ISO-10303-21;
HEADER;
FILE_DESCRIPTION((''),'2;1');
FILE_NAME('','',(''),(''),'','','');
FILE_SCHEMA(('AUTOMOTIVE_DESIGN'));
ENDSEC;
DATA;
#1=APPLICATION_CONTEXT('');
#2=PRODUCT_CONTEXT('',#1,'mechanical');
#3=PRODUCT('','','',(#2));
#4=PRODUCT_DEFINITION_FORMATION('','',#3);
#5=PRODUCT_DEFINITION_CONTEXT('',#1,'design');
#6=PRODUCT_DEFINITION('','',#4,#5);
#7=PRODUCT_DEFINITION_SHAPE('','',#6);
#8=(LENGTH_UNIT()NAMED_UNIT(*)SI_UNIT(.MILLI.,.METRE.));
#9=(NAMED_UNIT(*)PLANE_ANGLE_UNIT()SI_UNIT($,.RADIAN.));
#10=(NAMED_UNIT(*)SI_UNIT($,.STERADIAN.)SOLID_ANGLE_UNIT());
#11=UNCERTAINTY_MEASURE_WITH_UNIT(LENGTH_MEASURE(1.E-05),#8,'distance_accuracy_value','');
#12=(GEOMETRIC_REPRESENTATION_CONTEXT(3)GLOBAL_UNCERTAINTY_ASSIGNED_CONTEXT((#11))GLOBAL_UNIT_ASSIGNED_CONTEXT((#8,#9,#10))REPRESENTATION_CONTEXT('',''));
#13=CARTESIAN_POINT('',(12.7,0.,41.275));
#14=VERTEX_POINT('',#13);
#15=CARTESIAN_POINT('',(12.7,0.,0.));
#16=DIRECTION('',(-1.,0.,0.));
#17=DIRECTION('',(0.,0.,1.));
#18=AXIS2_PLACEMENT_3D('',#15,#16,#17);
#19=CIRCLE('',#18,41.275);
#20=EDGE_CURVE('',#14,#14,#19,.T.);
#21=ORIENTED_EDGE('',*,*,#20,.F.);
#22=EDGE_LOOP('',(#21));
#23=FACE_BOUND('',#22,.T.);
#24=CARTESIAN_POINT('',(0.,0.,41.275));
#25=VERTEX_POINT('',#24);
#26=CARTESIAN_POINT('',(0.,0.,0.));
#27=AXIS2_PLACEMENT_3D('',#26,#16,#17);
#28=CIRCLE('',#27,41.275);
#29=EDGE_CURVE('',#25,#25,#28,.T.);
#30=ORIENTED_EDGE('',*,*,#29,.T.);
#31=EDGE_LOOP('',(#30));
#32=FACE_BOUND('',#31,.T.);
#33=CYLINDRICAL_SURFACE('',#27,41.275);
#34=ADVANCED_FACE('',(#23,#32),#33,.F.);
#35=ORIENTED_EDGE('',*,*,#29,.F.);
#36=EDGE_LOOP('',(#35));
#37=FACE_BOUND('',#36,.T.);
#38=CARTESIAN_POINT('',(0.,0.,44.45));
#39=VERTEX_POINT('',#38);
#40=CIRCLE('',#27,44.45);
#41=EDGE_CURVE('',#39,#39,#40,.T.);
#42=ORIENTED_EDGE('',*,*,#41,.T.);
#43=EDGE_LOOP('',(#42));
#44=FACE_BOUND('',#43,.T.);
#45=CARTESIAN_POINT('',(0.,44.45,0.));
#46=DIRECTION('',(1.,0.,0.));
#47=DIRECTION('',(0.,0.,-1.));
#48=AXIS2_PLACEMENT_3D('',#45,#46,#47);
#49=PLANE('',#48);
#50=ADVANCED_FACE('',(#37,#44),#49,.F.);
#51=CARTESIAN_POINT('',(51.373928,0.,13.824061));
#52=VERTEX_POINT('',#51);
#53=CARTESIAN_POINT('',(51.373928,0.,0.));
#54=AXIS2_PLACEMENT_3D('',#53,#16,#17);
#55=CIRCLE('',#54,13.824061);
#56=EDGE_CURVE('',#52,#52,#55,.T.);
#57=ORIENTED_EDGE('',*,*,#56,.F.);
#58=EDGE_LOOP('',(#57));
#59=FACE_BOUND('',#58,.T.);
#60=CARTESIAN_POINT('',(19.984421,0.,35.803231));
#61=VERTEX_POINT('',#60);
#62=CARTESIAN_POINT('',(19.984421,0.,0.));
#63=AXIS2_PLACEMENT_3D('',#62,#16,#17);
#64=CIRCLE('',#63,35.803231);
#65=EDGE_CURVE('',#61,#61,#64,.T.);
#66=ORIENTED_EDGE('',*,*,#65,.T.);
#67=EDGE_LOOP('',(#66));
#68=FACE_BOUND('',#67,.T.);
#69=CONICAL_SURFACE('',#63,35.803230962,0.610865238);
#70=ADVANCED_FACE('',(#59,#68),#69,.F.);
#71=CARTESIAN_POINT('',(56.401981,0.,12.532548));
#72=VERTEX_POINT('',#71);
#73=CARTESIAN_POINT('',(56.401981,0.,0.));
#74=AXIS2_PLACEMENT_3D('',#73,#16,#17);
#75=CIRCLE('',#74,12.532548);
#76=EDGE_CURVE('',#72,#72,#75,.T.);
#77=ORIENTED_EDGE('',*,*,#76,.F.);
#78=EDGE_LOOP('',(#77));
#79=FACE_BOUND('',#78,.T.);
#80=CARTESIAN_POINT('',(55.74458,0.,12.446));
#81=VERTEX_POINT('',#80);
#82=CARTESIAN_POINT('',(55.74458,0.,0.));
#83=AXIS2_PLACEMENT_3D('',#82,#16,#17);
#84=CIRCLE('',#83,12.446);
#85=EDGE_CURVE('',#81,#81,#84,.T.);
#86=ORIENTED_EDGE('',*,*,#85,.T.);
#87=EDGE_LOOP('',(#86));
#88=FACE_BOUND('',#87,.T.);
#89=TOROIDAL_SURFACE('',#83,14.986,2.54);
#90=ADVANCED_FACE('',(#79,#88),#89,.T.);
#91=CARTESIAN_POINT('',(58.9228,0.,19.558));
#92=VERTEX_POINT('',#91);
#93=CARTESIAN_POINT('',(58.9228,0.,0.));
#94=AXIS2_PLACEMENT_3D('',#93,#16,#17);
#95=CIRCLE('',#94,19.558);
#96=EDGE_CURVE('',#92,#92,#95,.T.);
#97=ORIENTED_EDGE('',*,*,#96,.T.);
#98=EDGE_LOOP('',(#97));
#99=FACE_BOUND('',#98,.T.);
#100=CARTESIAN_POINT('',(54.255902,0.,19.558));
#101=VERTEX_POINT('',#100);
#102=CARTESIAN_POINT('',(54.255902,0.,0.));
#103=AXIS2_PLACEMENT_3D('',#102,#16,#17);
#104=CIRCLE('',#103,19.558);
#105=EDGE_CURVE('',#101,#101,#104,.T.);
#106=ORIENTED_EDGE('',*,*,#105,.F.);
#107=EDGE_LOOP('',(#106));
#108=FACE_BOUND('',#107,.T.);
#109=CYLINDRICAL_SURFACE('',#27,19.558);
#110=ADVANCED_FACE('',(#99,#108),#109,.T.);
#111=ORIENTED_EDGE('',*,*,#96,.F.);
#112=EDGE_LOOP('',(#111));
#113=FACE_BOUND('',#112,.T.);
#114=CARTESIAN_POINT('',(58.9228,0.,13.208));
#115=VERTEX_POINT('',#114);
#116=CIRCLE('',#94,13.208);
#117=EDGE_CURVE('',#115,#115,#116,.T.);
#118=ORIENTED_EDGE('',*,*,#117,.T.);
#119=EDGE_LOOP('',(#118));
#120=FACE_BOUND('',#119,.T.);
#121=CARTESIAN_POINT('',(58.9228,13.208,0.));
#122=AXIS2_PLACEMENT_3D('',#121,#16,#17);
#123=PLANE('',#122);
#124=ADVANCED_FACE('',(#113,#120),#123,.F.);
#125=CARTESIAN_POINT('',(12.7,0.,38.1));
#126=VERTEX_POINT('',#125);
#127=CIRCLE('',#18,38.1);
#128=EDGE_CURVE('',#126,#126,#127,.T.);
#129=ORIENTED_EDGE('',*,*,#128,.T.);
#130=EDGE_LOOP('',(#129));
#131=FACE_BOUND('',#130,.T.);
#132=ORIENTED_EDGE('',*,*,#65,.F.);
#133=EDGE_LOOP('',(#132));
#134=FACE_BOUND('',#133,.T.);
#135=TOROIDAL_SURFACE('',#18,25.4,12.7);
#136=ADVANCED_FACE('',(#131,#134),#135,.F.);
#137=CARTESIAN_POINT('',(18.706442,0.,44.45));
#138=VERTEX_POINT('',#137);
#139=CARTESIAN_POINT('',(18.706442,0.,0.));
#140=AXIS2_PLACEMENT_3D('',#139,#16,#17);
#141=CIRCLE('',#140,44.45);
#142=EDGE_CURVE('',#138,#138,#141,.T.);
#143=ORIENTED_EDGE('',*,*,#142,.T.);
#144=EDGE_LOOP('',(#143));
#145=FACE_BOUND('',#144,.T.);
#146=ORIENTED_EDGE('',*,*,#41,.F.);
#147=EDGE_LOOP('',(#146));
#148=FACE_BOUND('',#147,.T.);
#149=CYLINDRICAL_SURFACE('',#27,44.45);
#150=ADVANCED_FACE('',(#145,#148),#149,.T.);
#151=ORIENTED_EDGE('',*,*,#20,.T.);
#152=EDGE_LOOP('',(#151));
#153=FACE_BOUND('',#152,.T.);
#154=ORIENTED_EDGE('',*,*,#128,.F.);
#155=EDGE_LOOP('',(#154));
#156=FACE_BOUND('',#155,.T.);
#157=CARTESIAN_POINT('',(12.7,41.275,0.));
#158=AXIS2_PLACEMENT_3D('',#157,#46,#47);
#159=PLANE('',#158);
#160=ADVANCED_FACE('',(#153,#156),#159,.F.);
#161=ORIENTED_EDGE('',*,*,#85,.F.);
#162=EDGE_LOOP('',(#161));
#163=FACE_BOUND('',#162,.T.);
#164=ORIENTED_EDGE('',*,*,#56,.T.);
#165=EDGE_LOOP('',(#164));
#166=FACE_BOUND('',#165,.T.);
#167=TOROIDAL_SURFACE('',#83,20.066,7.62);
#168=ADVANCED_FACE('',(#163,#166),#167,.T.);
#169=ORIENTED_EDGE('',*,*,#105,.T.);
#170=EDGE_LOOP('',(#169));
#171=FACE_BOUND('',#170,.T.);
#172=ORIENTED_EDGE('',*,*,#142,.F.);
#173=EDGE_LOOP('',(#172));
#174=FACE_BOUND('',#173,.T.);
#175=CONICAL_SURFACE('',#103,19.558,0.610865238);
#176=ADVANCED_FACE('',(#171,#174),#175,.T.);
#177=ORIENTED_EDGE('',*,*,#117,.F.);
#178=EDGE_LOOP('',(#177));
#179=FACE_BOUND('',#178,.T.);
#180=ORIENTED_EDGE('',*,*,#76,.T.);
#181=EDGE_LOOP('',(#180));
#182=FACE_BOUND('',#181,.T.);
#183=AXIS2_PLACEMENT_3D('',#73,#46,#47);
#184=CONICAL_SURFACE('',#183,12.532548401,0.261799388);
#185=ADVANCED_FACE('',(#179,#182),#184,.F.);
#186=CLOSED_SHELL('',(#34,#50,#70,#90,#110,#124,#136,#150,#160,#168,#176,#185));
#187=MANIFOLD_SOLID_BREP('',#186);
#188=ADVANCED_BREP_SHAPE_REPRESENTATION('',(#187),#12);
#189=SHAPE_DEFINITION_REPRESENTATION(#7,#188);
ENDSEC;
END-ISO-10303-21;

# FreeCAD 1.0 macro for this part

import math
import FreeCAD as App
import Part
import Sketcher
Q = App.Units.Quantity

doc = App.newDocument("Part")
params = doc.addObject("Spreadsheet::Sheet", "Params")
for row, (alias, value) in enumerate([
    ("sketch1_radius", "0.5 in"),
    ("sketch1_radius2", "0.3 in"),
    ("sketch1_radius3", "0.1 in"),
    ("sketch1_width", "0.5 in"),
    ("sketch1_height", "0.25 in"),
    ("revolution_angle", "360 deg"),
], start=1):
    params.set(f"A{row}", alias)
    params.set(f"B{row}", "=" + value)
    params.setAlias(f"B{row}", alias)

body = doc.addObject("PartDesign::Body", "Body")

# Sketch on XY plane
sketch1 = body.newObject("Sketcher::SketchObject", "Sketch")
sketch1.AttachmentSupport = (doc.getObject("XY_Plane"), [""])
sketch1.MapMode = "FlatFace"
sketch1.addGeometry([
    Part.LineSegment(App.Vector(18.7, 44.5, 0), App.Vector(0, 44.5, 0)),  # 0
    Part.LineSegment(App.Vector(0, 44.5, 0), App.Vector(0, 41.3, 0)),  # 1
    Part.LineSegment(App.Vector(0, 41.3, 0), App.Vector(12.7, 41.3, 0)),  # 2
    Part.LineSegment(App.Vector(12.7, 41.3, 0), App.Vector(12.7, 38.1, 0)),  # 3
    Part.ArcOfCircle(Part.Circle(App.Vector(12.7, 25.4, 0), App.Vector(0, 0, 1), 12.7), math.radians(55), math.radians(90)),  # 4
    Part.LineSegment(App.Vector(20, 35.8, 0), App.Vector(51.4, 13.8, 0)),  # 5
    Part.ArcOfCircle(Part.Circle(App.Vector(55.7, 20.1, 0), App.Vector(0, 0, 1), 7.6), math.radians(-125), math.radians(-90)),  # 6
    Part.ArcOfCircle(Part.Circle(App.Vector(55.7, 15, 0), App.Vector(0, 0, 1), 2.5), math.radians(-90), math.radians(-75)),  # 7
    Part.LineSegment(App.Vector(56.4, 12.5, 0), App.Vector(58.9, 13.2, 0)),  # 8
    Part.LineSegment(App.Vector(58.9, 13.2, 0), App.Vector(58.9, 19.6, 0)),  # 9
    Part.LineSegment(App.Vector(58.9, 19.6, 0), App.Vector(54.3, 19.6, 0)),  # 10
    Part.LineSegment(App.Vector(54.3, 19.6, 0), App.Vector(18.7, 44.5, 0)),  # 11
], False)
sketch1.addConstraint([
    Sketcher.Constraint("Coincident", 0, 2, 1, 1),
    Sketcher.Constraint("Coincident", 1, 2, 2, 1),
    Sketcher.Constraint("Coincident", 2, 2, 3, 1),
    Sketcher.Constraint("Coincident", 3, 2, 4, 2),
    Sketcher.Constraint("Tangent", 4, 1, 5, 1),
    Sketcher.Constraint("Tangent", 5, 2, 6, 1),
    Sketcher.Constraint("Tangent", 6, 2, 7, 1),
    Sketcher.Constraint("Tangent", 7, 2, 8, 1),
    Sketcher.Constraint("Coincident", 8, 2, 9, 1),
    Sketcher.Constraint("Coincident", 9, 2, 10, 1),
    Sketcher.Constraint("Coincident", 10, 2, 11, 1),
    Sketcher.Constraint("Coincident", 11, 2, 0, 1),
    Sketcher.Constraint("Horizontal", 0),
    Sketcher.Constraint("Vertical", 1),
    Sketcher.Constraint("Horizontal", 2),
    Sketcher.Constraint("Vertical", 3),
    Sketcher.Constraint("Vertical", 9),
    Sketcher.Constraint("Horizontal", 10),
    Sketcher.Constraint("PointOnObject", 0, 2, -2),
    Sketcher.Constraint("Parallel", 5, 11),
    Sketcher.Constraint("Vertical", 6, 3, 7, 3),
    Sketcher.Constraint("Vertical", 4, 3, 2, 2),
    Sketcher.Constraint("Equal", 1, 3),
    Sketcher.Constraint("Radius", 4, Q("0.5 in")),
    Sketcher.Constraint("Radius", 6, Q("0.3 in")),
    Sketcher.Constraint("Radius", 7, Q("0.1 in")),
    Sketcher.Constraint("DistanceX", 2, 1, 2, 2, Q("0.5 in")),
    Sketcher.Constraint("DistanceY", -1, 1, 4, 3, Q("1 in")),
    Sketcher.Constraint("Angle", 5, Q("-35 deg")),
    Sketcher.Constraint("Angle", 8, Q("15 deg")),
    Sketcher.Constraint("DistanceY", 9, 1, 9, 2, Q("0.25 in")),
    Sketcher.Constraint("DistanceY", 1, 2, 1, 1, Q("0.125 in")),
    Sketcher.Constraint("DistanceY", -1, 1, 6, 3, Q("0.79 in")),
    Sketcher.Constraint("DistanceY", -1, 1, 8, 2, Q("0.52 in")),
    Sketcher.Constraint("DistanceX", 10, 2, 10, 1, 4.666898),
])
sketch1.setExpression("Constraints[23]", "Params.sketch1_radius")
sketch1.setExpression("Constraints[24]", "Params.sketch1_radius2")
sketch1.setExpression("Constraints[25]", "Params.sketch1_radius3")
sketch1.setExpression("Constraints[26]", "Params.sketch1_width")
sketch1.setExpression("Constraints[30]", "Params.sketch1_height")
revolution = body.newObject("PartDesign::Revolution", "Revolution")
revolution.Profile = sketch1
revolution.ReferenceAxis = (sketch1, ["H_Axis"])
revolution.setExpression("Angle", "Params.revolution_angle")

doc.recompute()
